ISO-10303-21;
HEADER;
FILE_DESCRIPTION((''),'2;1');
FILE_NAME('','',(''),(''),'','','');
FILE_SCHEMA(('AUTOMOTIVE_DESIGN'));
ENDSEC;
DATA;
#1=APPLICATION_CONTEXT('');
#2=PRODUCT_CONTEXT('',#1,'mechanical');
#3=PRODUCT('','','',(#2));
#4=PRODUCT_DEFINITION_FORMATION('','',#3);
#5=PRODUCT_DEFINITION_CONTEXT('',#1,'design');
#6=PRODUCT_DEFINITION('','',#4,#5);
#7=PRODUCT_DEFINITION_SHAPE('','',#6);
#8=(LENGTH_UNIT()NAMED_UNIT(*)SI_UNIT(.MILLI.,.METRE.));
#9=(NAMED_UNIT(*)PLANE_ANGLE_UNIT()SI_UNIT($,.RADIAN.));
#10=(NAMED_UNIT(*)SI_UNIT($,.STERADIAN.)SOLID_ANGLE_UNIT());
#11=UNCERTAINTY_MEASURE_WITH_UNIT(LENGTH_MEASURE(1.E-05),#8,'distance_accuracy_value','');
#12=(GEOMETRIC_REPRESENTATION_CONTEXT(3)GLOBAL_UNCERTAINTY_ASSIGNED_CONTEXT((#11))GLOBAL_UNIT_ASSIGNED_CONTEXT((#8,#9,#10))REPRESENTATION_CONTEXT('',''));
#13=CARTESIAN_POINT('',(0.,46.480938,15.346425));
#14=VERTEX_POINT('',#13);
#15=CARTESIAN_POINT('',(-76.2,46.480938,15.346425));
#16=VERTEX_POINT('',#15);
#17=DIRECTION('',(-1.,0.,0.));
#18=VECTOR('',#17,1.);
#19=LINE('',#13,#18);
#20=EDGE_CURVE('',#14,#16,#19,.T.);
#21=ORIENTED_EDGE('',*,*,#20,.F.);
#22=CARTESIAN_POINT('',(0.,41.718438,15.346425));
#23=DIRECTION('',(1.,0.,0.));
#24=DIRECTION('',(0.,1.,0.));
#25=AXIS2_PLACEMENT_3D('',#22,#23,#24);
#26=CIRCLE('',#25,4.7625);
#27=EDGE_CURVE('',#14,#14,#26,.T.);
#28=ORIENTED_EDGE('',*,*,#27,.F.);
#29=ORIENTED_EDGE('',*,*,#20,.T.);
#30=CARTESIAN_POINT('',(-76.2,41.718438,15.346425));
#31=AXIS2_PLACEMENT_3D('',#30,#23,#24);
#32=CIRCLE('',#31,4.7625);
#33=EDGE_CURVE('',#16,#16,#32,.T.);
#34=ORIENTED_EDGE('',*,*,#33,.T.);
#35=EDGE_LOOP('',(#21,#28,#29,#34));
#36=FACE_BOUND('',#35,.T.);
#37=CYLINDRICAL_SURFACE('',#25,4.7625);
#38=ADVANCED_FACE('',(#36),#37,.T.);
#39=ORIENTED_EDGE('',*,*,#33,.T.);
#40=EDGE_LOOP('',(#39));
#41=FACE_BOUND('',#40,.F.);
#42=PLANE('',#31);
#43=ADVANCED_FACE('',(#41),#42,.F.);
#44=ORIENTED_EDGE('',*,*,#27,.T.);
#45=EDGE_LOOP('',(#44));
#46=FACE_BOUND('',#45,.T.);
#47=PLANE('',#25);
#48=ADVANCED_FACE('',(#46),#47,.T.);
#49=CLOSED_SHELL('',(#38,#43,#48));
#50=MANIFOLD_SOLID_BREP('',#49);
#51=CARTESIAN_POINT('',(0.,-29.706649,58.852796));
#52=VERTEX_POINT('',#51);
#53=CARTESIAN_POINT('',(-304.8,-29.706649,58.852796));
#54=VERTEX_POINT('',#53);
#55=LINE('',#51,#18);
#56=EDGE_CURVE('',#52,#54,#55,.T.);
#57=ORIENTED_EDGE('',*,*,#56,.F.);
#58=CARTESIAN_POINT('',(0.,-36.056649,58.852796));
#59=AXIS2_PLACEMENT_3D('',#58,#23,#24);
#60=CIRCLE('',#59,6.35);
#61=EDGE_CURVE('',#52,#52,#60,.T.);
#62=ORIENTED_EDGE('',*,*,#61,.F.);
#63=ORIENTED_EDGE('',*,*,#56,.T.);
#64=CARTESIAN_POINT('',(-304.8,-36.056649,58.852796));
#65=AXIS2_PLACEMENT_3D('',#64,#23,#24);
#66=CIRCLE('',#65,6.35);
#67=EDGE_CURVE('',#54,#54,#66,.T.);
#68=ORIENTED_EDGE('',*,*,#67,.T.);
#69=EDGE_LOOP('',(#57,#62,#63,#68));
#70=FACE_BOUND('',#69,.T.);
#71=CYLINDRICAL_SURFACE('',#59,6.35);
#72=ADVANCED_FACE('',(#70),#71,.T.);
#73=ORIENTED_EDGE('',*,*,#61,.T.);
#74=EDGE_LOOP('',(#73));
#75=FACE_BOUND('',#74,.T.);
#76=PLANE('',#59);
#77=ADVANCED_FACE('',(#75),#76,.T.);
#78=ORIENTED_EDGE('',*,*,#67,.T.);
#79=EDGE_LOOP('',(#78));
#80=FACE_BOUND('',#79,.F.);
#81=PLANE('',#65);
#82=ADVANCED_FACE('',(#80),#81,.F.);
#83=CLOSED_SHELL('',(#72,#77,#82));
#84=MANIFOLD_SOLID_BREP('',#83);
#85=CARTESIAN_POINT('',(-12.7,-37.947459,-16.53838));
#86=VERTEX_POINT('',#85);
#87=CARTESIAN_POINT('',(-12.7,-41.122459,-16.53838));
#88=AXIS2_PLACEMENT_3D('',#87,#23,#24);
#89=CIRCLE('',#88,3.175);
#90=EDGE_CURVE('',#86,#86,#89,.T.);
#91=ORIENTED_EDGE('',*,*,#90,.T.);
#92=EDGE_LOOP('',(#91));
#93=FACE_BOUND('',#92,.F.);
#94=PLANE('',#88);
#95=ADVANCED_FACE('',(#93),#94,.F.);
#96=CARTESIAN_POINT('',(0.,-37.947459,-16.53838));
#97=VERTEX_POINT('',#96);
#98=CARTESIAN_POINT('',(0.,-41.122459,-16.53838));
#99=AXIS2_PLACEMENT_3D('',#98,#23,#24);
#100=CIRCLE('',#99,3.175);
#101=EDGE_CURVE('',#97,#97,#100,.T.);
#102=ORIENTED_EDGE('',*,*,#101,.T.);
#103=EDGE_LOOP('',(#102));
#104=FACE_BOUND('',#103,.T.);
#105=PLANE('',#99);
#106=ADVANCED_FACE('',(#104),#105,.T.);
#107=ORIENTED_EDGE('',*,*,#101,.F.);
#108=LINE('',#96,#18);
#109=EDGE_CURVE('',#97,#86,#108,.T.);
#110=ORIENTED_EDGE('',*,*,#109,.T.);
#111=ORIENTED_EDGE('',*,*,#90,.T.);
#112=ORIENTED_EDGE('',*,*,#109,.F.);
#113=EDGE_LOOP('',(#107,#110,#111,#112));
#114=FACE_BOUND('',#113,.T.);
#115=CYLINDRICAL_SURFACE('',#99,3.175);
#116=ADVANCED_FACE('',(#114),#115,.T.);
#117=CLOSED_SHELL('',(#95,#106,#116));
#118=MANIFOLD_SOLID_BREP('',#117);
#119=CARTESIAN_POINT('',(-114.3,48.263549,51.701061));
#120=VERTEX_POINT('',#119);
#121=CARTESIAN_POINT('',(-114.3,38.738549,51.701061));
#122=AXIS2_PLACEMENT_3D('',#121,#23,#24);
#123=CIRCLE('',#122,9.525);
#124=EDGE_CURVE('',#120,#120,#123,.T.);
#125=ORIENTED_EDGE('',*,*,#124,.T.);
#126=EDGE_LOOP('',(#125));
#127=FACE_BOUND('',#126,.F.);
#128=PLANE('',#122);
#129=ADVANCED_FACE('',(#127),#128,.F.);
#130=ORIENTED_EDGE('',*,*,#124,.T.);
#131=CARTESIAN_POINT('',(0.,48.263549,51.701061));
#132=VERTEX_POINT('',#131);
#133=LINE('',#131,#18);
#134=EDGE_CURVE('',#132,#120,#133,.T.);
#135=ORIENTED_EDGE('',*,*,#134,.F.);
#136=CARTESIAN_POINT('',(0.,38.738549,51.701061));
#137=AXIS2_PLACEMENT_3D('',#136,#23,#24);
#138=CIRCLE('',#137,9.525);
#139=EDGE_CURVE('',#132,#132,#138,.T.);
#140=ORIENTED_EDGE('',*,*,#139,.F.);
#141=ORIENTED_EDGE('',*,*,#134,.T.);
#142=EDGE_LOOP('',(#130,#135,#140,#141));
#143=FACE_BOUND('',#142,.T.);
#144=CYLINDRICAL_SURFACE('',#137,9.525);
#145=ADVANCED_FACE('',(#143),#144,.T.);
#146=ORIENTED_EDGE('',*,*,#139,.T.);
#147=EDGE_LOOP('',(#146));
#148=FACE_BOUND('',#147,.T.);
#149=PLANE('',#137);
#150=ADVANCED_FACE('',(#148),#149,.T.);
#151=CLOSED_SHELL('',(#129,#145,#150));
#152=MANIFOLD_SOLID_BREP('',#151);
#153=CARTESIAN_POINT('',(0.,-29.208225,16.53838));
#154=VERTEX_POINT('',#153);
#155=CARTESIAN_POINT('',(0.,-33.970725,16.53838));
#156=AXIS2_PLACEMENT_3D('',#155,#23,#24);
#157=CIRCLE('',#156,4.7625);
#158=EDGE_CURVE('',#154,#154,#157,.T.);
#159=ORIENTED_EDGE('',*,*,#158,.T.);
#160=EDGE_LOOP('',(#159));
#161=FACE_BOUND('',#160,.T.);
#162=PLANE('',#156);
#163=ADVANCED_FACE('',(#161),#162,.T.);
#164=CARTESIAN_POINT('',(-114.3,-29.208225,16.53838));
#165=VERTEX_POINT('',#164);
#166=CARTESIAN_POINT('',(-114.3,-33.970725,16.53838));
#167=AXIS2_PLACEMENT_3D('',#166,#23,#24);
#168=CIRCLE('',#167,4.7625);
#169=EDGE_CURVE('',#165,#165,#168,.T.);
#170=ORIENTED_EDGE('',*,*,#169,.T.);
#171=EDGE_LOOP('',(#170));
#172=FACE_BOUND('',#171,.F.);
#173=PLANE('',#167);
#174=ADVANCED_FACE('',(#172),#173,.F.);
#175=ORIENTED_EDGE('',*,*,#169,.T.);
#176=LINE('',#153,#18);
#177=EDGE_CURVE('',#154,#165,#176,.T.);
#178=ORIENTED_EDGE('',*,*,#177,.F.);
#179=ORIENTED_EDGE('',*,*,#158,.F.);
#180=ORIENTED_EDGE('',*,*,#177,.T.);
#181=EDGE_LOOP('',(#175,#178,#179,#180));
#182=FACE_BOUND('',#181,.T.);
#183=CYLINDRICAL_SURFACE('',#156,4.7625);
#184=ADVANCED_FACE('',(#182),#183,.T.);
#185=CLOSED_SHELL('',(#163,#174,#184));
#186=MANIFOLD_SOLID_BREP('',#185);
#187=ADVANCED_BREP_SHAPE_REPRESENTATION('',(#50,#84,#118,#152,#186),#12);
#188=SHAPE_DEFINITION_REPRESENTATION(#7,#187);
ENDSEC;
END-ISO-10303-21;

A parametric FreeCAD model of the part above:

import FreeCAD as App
import Part
import Sketcher
Q = App.Units.Quantity

doc = App.newDocument("Part")
body = doc.addObject("PartDesign::Body", "Body")

sketch1 = body.newObject("Sketcher::SketchObject", "Sketch")
sketch1.AttachmentSupport = (doc.getObject("YZ_Plane"), [""])
sketch1.MapMode = "FlatFace"
sketch1.addGeometry(Part.Circle(App.Vector(-36, 59, 0), App.Vector(0, 0, 1), 6), False)
sketch1.addConstraint([
    Sketcher.Constraint("Diameter", 0, Q("0.5 in")),
    Sketcher.Constraint("DistanceX", 0, 3, -1, 1, Q("36.056649 mm")),
    Sketcher.Constraint("DistanceY", -1, 1, 0, 3, Q("58.852796 mm")),
])
pad1 = body.newObject("PartDesign::Pad", "Pad")
pad1.Profile = sketch1
pad1.Length = Q("12 in")
pad1.Reversed = True
body2 = doc.addObject("PartDesign::Body", "Body001")

sketch2 = body2.newObject("Sketcher::SketchObject", "Sketch001")
sketch2.AttachmentSupport = (doc.getObject("YZ_Plane001"), [""])
sketch2.MapMode = "FlatFace"
sketch2.addGeometry(Part.Circle(App.Vector(39, 52, 0), App.Vector(0, 0, 1), 10), False)
sketch2.addConstraint([
    Sketcher.Constraint("Diameter", 0, Q("0.75 in")),
    Sketcher.Constraint("DistanceX", -1, 1, 0, 3, Q("38.738549 mm")),
    Sketcher.Constraint("DistanceY", -1, 1, 0, 3, Q("51.701061 mm")),
])
pad2 = body2.newObject("PartDesign::Pad", "Pad001")
pad2.Profile = sketch2
pad2.Length = Q("4.5 in")
pad2.Reversed = True
body3 = doc.addObject("PartDesign::Body", "Body002")

sketch3 = body3.newObject("Sketcher::SketchObject", "Sketch002")
sketch3.AttachmentSupport = (doc.getObject("YZ_Plane002"), [""])
sketch3.MapMode = "FlatFace"
sketch3.addGeometry(Part.Circle(App.Vector(-34, 16.5, 0), App.Vector(0, 0, 1), 4.8), False)
sketch3.addConstraint([
    Sketcher.Constraint("Diameter", 0, Q("0.375 in")),
    Sketcher.Constraint("DistanceY", -1, 1, 0, 3, Q("16.53838 mm")),
    Sketcher.Constraint("DistanceX", 0, 3, -1, 1, Q("33.970725 mm")),
])
pad3 = body3.newObject("PartDesign::Pad", "Pad002")
pad3.Profile = sketch3
pad3.Length = Q("4.5 in")
pad3.Reversed = True
body4 = doc.addObject("PartDesign::Body", "Body003")

sketch4 = body4.newObject("Sketcher::SketchObject", "Sketch003")
sketch4.AttachmentSupport = (doc.getObject("YZ_Plane003"), [""])
sketch4.MapMode = "FlatFace"
sketch4.addGeometry(Part.Circle(App.Vector(41.7, 15.3, 0), App.Vector(0, 0, 1), 4.8), False)
sketch4.addConstraint([
    Sketcher.Constraint("Diameter", 0, Q("0.375 in")),
    Sketcher.Constraint("DistanceX", -1, 1, 0, 3, Q("41.718438 mm")),
    Sketcher.Constraint("DistanceY", -1, 1, 0, 3, Q("15.346425 mm")),
])
pad4 = body4.newObject("PartDesign::Pad", "Pad003")
pad4.Profile = sketch4
pad4.Length = Q("3 in")
pad4.Reversed = True
body5 = doc.addObject("PartDesign::Body", "Body004")

sketch5 = body5.newObject("Sketcher::SketchObject", "Sketch004")
sketch5.AttachmentSupport = (doc.getObject("YZ_Plane004"), [""])
sketch5.MapMode = "FlatFace"
sketch5.addGeometry(Part.Circle(App.Vector(-41.1, -16.5, 0), App.Vector(0, 0, 1), 3.2), False)
sketch5.addConstraint([
    Sketcher.Constraint("Diameter", 0, Q("0.25 in")),
    Sketcher.Constraint("DistanceX", 0, 3, -1, 1, Q("41.122459 mm")),
    Sketcher.Constraint("DistanceY", 0, 3, -1, 1, Q("16.53838 mm")),
])
pad5 = body5.newObject("PartDesign::Pad", "Pad004")
pad5.Profile = sketch5
pad5.Length = Q("0.5 in")
pad5.Reversed = True

doc.recompute()
